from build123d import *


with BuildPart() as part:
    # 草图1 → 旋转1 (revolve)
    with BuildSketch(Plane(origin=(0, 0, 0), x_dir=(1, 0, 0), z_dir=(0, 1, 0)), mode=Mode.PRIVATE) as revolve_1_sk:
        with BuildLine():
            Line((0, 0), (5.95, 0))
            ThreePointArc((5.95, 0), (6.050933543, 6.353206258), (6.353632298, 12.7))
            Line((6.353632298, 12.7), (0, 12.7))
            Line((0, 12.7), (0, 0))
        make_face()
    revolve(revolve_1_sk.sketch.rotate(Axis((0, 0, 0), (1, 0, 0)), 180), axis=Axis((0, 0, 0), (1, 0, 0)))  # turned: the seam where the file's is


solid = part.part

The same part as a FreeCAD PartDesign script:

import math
import FreeCAD as App
import Part
import Sketcher
from FreeCAD import Vector

doc = App.newDocument("Part")
body = doc.addObject("PartDesign::Body", "Body")

sketch1 = doc.addObject("Sketcher::SketchObject", "Sketch")
body.addObject(sketch1)
sketch1.AttachmentSupport = (doc.XZ_Plane, [""])
sketch1.MapMode = "FlatFace"
sketch1.addGeometry([
    Part.LineSegment(Vector(0, 0, 0), Vector(6, 0, 0)),
    Part.ArcOfCircle(Part.Circle(Vector(206, 0, 0), Vector(0, 0, 1), 200), math.radians(180), math.radians(183.64)),
    Part.LineSegment(Vector(6, -13, 0), Vector(0, -13, 0)),
    Part.LineSegment(Vector(0, -13, 0), Vector(0, 0, 0)),
], False)
sketch1.addConstraint([
    Sketcher.Constraint("Coincident", 0, 2, 1, 1),
    Sketcher.Constraint("Coincident", 1, 2, 2, 1),
    Sketcher.Constraint("Coincident", 2, 2, 3, 1),
    Sketcher.Constraint("Coincident", 3, 2, 0, 1),
    Sketcher.Constraint("Horizontal", 0),
    Sketcher.Constraint("Horizontal", 2),
    Sketcher.Constraint("Vertical", 3),
    Sketcher.Constraint("Coincident", 3, 2, -1, 1),
    Sketcher.Constraint("PointOnObject", 1, 3, -1),
    Sketcher.Constraint("Radius", 1, 199.999999),
    Sketcher.Constraint("DistanceY", 3, 1, 3, 2, 12.7),
    Sketcher.Constraint("DistanceX", 0, 1, 0, 2, 5.95),
])
revolution = doc.addObject("PartDesign::Revolution", "Revolution")
body.addObject(revolution)
revolution.Profile = sketch1
revolution.ReferenceAxis = (sketch1, ["H_Axis"])
revolution.Angle = 360

doc.recompute()
